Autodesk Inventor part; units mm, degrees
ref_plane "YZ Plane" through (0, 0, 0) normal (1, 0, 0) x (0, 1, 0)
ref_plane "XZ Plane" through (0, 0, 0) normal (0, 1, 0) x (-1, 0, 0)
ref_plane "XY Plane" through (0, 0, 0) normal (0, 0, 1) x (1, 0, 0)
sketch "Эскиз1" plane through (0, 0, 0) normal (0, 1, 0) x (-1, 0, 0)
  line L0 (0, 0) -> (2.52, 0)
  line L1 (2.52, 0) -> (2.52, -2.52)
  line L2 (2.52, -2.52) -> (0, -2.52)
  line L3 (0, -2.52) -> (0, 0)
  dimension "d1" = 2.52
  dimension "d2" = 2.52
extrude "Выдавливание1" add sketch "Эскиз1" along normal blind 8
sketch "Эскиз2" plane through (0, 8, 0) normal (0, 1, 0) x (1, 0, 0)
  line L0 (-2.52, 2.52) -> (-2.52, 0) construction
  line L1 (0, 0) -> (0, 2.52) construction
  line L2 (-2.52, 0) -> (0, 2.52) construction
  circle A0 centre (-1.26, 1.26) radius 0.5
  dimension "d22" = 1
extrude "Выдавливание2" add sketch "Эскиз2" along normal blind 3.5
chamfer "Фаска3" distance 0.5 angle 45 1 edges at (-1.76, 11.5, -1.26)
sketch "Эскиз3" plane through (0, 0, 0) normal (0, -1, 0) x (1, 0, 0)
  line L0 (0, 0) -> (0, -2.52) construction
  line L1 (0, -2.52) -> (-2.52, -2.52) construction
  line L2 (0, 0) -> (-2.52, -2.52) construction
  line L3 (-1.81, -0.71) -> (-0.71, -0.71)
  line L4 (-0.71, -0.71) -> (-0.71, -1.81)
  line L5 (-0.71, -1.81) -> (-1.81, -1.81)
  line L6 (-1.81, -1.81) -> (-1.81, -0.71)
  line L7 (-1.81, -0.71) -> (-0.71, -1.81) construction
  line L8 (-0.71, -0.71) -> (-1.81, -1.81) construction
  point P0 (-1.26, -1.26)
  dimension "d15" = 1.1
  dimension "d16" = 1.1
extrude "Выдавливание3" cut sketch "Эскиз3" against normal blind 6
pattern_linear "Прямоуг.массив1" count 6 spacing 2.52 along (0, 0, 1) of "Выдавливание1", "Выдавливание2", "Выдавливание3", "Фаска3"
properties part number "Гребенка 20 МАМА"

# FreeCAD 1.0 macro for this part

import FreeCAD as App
import Part
import Sketcher
from FreeCAD import Vector
Q = App.Units.Quantity


def edges_at(feature, points):
    """Names of the edges that pass closest to the given points."""
    edges = feature.Shape.Edges
    near = lambda p: min(range(len(edges)), key=lambda i: edges[i].distToShape(Part.Vertex(*p))[0])
    return sorted({f"Edge{near(p) + 1}" for p in points})

doc = App.newDocument("Part")
body = doc.addObject("PartDesign::Body", "Body")

# Sketch on XZ plane
sketch1 = body.newObject("Sketcher::SketchObject", "Sketch")
sketch1.AttachmentSupport = (doc.getObject("XZ_Plane"), [""])
sketch1.MapMode = "FlatFace"
sketch1.addGeometry(Part.LineSegment(Vector(-2.5, 0, 0), Vector(0, 0, 0)), False)
sketch1.addGeometry(Part.LineSegment(Vector(0, 0, 0), Vector(0, -2.5, 0)), False)
sketch1.addGeometry(Part.LineSegment(Vector(0, -2.5, 0), Vector(-2.5, -2.5, 0)), False)
sketch1.addGeometry(Part.LineSegment(Vector(-2.5, -2.5, 0), Vector(-2.5, 0, 0)), False)
sketch1.addConstraint(Sketcher.Constraint("Coincident", 0, 2, 1, 1))
sketch1.addConstraint(Sketcher.Constraint("Coincident", 1, 2, 2, 1))
sketch1.addConstraint(Sketcher.Constraint("Coincident", 2, 2, 3, 1))
sketch1.addConstraint(Sketcher.Constraint("Coincident", 3, 2, 0, 1))
sketch1.addConstraint(Sketcher.Constraint("Horizontal", 0))
sketch1.addConstraint(Sketcher.Constraint("Vertical", 1))
sketch1.addConstraint(Sketcher.Constraint("Horizontal", 2))
sketch1.addConstraint(Sketcher.Constraint("Vertical", 3))
sketch1.addConstraint(Sketcher.Constraint("Coincident", 0, 2, -1, 1))
sketch1.addConstraint(Sketcher.Constraint("Equal", 2, 1))
sketch1.addConstraint(Sketcher.Constraint("DistanceX", 0, 1, 0, 2, Q("2.52 mm")))
pad1 = body.newObject("PartDesign::Pad", "Pad")
pad1.Profile = sketch1
pad1.Length = 8
pad1.Reversed = True

# Sketch on XZ plane
sketch2 = body.newObject("Sketcher::SketchObject", "Sketch001")
sketch2.AttachmentSupport = (doc.getObject("XZ_Plane"), [""])
sketch2.MapMode = "FlatFace"
sketch2.AttachmentOffset = App.Placement(Vector(0, 0, -8), App.Rotation())
sketch2.addGeometry(Part.Circle(Vector(-1.3, -1.3, 0), Vector(0, 0, 1), 0.5), False)
sketch2.addConstraint(Sketcher.Constraint("Diameter", 0, Q("1 mm")))
sketch2.addConstraint(Sketcher.Constraint("DistanceX", 0, 3, -1, 1, Q("1.26 mm")))
sketch2.addConstraint(Sketcher.Constraint("DistanceY", 0, 3, -1, 1, Q("1.26 mm")))
pad2 = body.newObject("PartDesign::Pad", "Pad001")
pad2.Profile = sketch2
pad2.Length = 3.5
pad2.Reversed = True
doc.recompute()

chamfer = body.newObject("PartDesign::Chamfer", "Chamfer")
chamfer.Base = (pad2, edges_at(pad2, [(-1.76, 11.5, -1.26)]))
chamfer.Size = 0.5

# Sketch on XZ plane
sketch3 = body.newObject("Sketcher::SketchObject", "Sketch002")
sketch3.AttachmentSupport = (doc.getObject("XZ_Plane"), [""])
sketch3.MapMode = "FlatFace"
sketch3.addGeometry(Part.LineSegment(Vector(-0.7, -0.7, 0), Vector(-1.8, -0.7, 0)), False)
sketch3.addGeometry(Part.LineSegment(Vector(-1.8, -0.7, 0), Vector(-1.8, -1.8, 0)), False)
sketch3.addGeometry(Part.LineSegment(Vector(-1.8, -1.8, 0), Vector(-0.7, -1.8, 0)), False)
sketch3.addGeometry(Part.LineSegment(Vector(-0.7, -1.8, 0), Vector(-0.7, -0.7, 0)), False)
sketch3.addConstraint(Sketcher.Constraint("Coincident", 0, 2, 1, 1))
sketch3.addConstraint(Sketcher.Constraint("Coincident", 1, 2, 2, 1))
sketch3.addConstraint(Sketcher.Constraint("Coincident", 2, 2, 3, 1))
sketch3.addConstraint(Sketcher.Constraint("Coincident", 3, 2, 0, 1))
sketch3.addConstraint(Sketcher.Constraint("Horizontal", 0))
sketch3.addConstraint(Sketcher.Constraint("Vertical", 1))
sketch3.addConstraint(Sketcher.Constraint("Horizontal", 2))
sketch3.addConstraint(Sketcher.Constraint("Vertical", 3))
sketch3.addConstraint(Sketcher.Constraint("Equal", 2, 1))
sketch3.addConstraint(Sketcher.Constraint("DistanceX", 0, 2, 0, 1, Q("1.1 mm")))
sketch3.addConstraint(Sketcher.Constraint("DistanceX", 0, 2, -1, 1, Q("1.81 mm")))
sketch3.addConstraint(Sketcher.Constraint("DistanceY", 0, 2, -1, 1, Q("0.71 mm")))
pocket1 = body.newObject("PartDesign::Pocket", "Pocket")
pocket1.Profile = sketch3
pocket1.Length = 6
doc.recompute()

linearpattern = body.newObject("PartDesign::LinearPattern", "LinearPattern")
linearpattern.Originals = [pad1, pad2, pocket1, chamfer]
linearpattern.Direction = (doc.getObject("Z_Axis"), [""])
linearpattern.Mode = "offset"
linearpattern.Offset = 2.52
linearpattern.Occurrences = 6
body.Tip = linearpattern

doc.recompute()
